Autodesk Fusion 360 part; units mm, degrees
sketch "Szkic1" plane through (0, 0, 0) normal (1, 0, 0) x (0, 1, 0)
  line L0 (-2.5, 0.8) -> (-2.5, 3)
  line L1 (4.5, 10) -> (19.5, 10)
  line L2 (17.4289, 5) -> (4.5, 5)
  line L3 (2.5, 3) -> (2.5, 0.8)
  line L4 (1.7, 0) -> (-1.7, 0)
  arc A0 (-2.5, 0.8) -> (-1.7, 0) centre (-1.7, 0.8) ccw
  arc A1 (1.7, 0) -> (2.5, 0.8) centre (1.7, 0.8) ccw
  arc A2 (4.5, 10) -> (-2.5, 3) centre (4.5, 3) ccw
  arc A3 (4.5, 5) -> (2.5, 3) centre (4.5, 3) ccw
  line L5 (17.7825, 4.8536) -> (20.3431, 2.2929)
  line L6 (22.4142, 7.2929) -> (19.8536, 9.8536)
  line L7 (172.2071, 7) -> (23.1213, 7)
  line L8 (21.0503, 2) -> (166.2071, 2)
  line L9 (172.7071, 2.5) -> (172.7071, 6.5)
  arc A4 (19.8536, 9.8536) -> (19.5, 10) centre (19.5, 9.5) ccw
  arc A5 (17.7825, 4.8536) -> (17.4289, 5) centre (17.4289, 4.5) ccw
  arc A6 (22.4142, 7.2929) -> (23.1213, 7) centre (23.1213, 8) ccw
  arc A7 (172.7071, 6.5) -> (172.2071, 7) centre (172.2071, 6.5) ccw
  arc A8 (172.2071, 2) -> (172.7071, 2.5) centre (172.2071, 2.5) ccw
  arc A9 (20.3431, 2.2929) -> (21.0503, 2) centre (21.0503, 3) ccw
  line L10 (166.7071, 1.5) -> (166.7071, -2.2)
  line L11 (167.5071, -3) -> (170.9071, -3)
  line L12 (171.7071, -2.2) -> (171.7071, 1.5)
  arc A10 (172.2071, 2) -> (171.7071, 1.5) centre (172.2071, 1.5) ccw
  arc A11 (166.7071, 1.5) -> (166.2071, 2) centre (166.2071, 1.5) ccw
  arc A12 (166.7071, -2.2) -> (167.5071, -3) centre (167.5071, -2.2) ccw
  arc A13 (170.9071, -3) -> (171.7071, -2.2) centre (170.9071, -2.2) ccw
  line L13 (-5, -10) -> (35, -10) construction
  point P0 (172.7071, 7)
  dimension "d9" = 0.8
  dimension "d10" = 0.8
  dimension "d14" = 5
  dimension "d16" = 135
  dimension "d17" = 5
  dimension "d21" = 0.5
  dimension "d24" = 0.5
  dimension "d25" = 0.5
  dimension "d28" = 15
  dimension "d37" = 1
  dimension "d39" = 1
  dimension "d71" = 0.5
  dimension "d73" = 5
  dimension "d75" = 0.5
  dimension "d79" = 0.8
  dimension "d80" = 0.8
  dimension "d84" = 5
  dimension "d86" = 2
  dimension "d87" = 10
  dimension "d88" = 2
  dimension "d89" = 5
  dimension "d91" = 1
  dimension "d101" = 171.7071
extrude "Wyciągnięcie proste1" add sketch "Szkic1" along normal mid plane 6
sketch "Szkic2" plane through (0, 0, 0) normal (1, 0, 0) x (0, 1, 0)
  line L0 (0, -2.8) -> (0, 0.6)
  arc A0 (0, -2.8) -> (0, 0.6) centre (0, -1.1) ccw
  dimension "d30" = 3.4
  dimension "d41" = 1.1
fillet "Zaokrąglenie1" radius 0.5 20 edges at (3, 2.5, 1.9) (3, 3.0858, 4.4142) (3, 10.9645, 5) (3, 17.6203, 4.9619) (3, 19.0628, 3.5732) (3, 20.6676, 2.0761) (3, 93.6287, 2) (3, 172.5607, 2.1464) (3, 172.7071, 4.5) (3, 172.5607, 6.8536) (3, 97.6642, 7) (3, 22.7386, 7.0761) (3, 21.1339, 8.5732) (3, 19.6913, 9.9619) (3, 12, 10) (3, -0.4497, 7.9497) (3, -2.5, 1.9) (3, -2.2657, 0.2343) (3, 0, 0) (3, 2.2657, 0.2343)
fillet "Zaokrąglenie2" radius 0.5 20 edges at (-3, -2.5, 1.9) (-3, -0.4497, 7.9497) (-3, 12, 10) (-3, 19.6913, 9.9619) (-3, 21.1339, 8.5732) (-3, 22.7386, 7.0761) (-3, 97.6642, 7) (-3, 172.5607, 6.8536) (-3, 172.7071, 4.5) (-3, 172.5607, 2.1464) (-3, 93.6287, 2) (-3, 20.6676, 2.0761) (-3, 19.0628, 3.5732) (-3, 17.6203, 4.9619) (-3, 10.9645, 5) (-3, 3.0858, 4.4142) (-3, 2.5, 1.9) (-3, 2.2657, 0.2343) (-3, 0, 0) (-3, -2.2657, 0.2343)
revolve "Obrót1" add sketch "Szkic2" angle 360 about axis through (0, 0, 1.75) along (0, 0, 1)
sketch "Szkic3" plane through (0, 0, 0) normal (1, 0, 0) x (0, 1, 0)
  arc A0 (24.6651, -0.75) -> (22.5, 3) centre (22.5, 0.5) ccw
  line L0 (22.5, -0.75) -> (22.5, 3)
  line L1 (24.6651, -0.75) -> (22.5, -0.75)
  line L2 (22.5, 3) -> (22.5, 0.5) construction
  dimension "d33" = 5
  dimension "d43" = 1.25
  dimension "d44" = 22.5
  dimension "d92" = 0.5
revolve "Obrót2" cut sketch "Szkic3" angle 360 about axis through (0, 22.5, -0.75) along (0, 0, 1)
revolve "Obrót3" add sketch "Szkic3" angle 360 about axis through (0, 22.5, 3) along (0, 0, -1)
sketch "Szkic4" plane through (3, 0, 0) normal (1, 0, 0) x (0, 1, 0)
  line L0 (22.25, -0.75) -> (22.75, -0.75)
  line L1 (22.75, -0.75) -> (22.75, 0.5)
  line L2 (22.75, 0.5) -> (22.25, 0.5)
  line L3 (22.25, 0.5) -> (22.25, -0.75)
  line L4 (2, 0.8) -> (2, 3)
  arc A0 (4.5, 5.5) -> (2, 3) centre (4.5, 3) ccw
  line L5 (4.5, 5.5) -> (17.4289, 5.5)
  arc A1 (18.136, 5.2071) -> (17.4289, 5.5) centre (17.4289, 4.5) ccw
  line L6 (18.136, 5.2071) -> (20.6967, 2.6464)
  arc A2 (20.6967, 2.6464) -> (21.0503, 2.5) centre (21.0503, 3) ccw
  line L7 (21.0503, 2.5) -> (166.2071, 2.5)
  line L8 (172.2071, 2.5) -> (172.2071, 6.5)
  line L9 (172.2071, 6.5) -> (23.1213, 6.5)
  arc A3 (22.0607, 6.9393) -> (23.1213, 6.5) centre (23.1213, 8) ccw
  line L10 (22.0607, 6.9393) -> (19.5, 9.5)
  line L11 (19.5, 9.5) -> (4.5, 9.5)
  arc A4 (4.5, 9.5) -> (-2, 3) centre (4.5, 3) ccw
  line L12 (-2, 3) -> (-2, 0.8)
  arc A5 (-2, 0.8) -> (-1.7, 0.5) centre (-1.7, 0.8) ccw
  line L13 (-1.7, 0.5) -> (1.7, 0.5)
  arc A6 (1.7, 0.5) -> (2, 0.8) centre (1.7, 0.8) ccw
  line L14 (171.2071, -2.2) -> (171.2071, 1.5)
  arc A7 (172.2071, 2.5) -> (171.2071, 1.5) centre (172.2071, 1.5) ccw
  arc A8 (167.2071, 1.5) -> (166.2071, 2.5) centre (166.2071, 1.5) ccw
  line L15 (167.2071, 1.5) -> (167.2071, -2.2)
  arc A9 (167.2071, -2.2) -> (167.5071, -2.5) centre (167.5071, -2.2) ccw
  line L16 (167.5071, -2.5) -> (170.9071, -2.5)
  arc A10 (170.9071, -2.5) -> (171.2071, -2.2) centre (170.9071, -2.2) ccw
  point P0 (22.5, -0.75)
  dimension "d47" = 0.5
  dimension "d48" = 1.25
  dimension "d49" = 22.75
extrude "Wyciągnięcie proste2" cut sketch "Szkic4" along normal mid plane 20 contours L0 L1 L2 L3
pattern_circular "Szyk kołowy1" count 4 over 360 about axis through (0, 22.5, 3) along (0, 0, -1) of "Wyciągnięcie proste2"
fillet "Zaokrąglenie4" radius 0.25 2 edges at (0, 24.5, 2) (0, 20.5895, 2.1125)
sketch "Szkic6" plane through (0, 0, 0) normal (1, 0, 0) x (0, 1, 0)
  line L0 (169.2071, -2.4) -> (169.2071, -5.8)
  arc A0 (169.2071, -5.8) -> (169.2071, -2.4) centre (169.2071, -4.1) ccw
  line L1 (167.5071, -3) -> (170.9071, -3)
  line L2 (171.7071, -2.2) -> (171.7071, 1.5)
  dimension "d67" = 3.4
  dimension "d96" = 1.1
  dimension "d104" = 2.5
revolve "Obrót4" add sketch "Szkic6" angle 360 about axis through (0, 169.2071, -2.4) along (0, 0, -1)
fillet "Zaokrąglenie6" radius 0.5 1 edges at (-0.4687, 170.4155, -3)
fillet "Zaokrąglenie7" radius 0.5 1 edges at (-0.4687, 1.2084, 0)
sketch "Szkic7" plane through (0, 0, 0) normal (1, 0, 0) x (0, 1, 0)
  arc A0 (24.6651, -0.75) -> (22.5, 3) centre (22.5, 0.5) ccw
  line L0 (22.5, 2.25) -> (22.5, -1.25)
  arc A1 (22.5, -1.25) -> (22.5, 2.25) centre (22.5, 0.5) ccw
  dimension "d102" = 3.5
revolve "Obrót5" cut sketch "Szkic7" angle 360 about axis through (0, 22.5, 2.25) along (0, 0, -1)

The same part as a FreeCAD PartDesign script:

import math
import FreeCAD as App
import Part
import Sketcher
from FreeCAD import Vector
Q = App.Units.Quantity


def edges_at(feature, points):
    """Names of the edges that pass closest to the given points."""
    edges = feature.Shape.Edges
    near = lambda p: min(range(len(edges)), key=lambda i: edges[i].distToShape(Part.Vertex(*p))[0])
    return sorted({f"Edge{near(p) + 1}" for p in points})

doc = App.newDocument("Part")
body = doc.addObject("PartDesign::Body", "Body")

sketch1 = doc.addObject("Sketcher::SketchObject", "Sketch")
body.addObject(sketch1)
sketch1.AttachmentSupport = (doc.YZ_Plane, [""])
sketch1.MapMode = "FlatFace"
sketch1.addGeometry(Part.LineSegment(Vector(-2.5, 3, 0), Vector(-2.5, 0.8, 0)), False)
sketch1.addGeometry(Part.ArcOfCircle(Part.Circle(Vector(-1.7, 0.8, 0), Vector(0, 0, 1), 0.8), math.radians(180), math.radians(270)), False)
sketch1.addGeometry(Part.LineSegment(Vector(-1.7, 0, 0), Vector(1.7, 0, 0)), False)
sketch1.addGeometry(Part.ArcOfCircle(Part.Circle(Vector(1.7, 0.8, 0), Vector(0, 0, 1), 0.8), math.radians(-90), math.radians(0)), False)
sketch1.addGeometry(Part.LineSegment(Vector(2.5, 0.8, 0), Vector(2.5, 3, 0)), False)
sketch1.addGeometry(Part.ArcOfCircle(Part.Circle(Vector(4.5, 3, 0), Vector(0, 0, 1), 2), math.radians(90), math.radians(180)), False)
sketch1.addGeometry(Part.LineSegment(Vector(4.5, 5, 0), Vector(17.43, 5, 0)), False)
sketch1.addGeometry(Part.ArcOfCircle(Part.Circle(Vector(17.43, 4.5, 0), Vector(0, 0, 1), 0.5), math.radians(45), math.radians(90)), False)
sketch1.addGeometry(Part.LineSegment(Vector(17.78, 4.85, 0), Vector(20.34, 2.29, 0)), False)
sketch1.addGeometry(Part.ArcOfCircle(Part.Circle(Vector(21.05, 3, 0), Vector(0, 0, 1), 1), math.radians(-135), math.radians(-90)), False)
sketch1.addGeometry(Part.LineSegment(Vector(21.05, 2, 0), Vector(166.21, 2, 0)), False)
sketch1.addGeometry(Part.ArcOfCircle(Part.Circle(Vector(166.21, 1.5, 0), Vector(0, 0, 1), 0.5), math.radians(0), math.radians(90)), False)
sketch1.addGeometry(Part.LineSegment(Vector(166.71, 1.5, 0), Vector(166.71, -2.2, 0)), False)
sketch1.addGeometry(Part.ArcOfCircle(Part.Circle(Vector(167.51, -2.2, 0), Vector(0, 0, 1), 0.8), math.radians(180), math.radians(270)), False)
sketch1.addGeometry(Part.LineSegment(Vector(167.51, -3, 0), Vector(170.91, -3, 0)), False)
sketch1.addGeometry(Part.ArcOfCircle(Part.Circle(Vector(170.91, -2.2, 0), Vector(0, 0, 1), 0.8), math.radians(-90), math.radians(0)), False)
sketch1.addGeometry(Part.LineSegment(Vector(171.71, -2.2, 0), Vector(171.71, 1.5, 0)), False)
sketch1.addGeometry(Part.ArcOfCircle(Part.Circle(Vector(172.21, 1.5, 0), Vector(0, 0, 1), 0.5), math.radians(90), math.radians(180)), False)
sketch1.addGeometry(Part.ArcOfCircle(Part.Circle(Vector(172.21, 2.5, 0), Vector(0, 0, 1), 0.5), math.radians(-90), math.radians(0)), False)
sketch1.addGeometry(Part.LineSegment(Vector(172.71, 2.5, 0), Vector(172.71, 6.5, 0)), False)
sketch1.addGeometry(Part.ArcOfCircle(Part.Circle(Vector(172.21, 6.5, 0), Vector(0, 0, 1), 0.5), math.radians(0), math.radians(90)), False)
sketch1.addGeometry(Part.LineSegment(Vector(172.21, 7, 0), Vector(23.12, 7, 0)), False)
sketch1.addGeometry(Part.ArcOfCircle(Part.Circle(Vector(23.12, 8, 0), Vector(0, 0, 1), 1), math.radians(-135), math.radians(-90)), False)
sketch1.addGeometry(Part.LineSegment(Vector(22.41, 7.29, 0), Vector(19.85, 9.85, 0)), False)
sketch1.addGeometry(Part.ArcOfCircle(Part.Circle(Vector(19.5, 9.5, 0), Vector(0, 0, 1), 0.5), math.radians(45), math.radians(90)), False)
sketch1.addGeometry(Part.LineSegment(Vector(19.5, 10, 0), Vector(4.5, 10, 0)), False)
sketch1.addGeometry(Part.ArcOfCircle(Part.Circle(Vector(4.5, 3, 0), Vector(0, 0, 1), 7), math.radians(90), math.radians(180)), False)
sketch1.addConstraint(Sketcher.Constraint("Tangent", 0, 2, 1, 1))
sketch1.addConstraint(Sketcher.Constraint("Tangent", 1, 2, 2, 1))
sketch1.addConstraint(Sketcher.Constraint("Tangent", 2, 2, 3, 1))
sketch1.addConstraint(Sketcher.Constraint("Tangent", 3, 2, 4, 1))
sketch1.addConstraint(Sketcher.Constraint("Tangent", 4, 2, 5, 2))
sketch1.addConstraint(Sketcher.Constraint("Tangent", 5, 1, 6, 1))
sketch1.addConstraint(Sketcher.Constraint("Tangent", 6, 2, 7, 2))
sketch1.addConstraint(Sketcher.Constraint("Tangent", 7, 1, 8, 1))
sketch1.addConstraint(Sketcher.Constraint("Tangent", 8, 2, 9, 1))
sketch1.addConstraint(Sketcher.Constraint("Tangent", 9, 2, 10, 1))
sketch1.addConstraint(Sketcher.Constraint("Tangent", 10, 2, 11, 2))
sketch1.addConstraint(Sketcher.Constraint("Tangent", 11, 1, 12, 1))
sketch1.addConstraint(Sketcher.Constraint("Tangent", 12, 2, 13, 1))
sketch1.addConstraint(Sketcher.Constraint("Tangent", 13, 2, 14, 1))
sketch1.addConstraint(Sketcher.Constraint("Tangent", 14, 2, 15, 1))
sketch1.addConstraint(Sketcher.Constraint("Tangent", 15, 2, 16, 1))
sketch1.addConstraint(Sketcher.Constraint("Tangent", 16, 2, 17, 2))
sketch1.addConstraint(Sketcher.Constraint("Tangent", 17, 1, 18, 1))
sketch1.addConstraint(Sketcher.Constraint("Tangent", 18, 2, 19, 1))
sketch1.addConstraint(Sketcher.Constraint("Tangent", 19, 2, 20, 1))
sketch1.addConstraint(Sketcher.Constraint("Tangent", 20, 2, 21, 1))
sketch1.addConstraint(Sketcher.Constraint("Tangent", 21, 2, 22, 2))
sketch1.addConstraint(Sketcher.Constraint("Tangent", 22, 1, 23, 1))
sketch1.addConstraint(Sketcher.Constraint("Tangent", 23, 2, 24, 1))
sketch1.addConstraint(Sketcher.Constraint("Tangent", 24, 2, 25, 1))
sketch1.addConstraint(Sketcher.Constraint("Tangent", 25, 2, 26, 1))
sketch1.addConstraint(Sketcher.Constraint("Tangent", 26, 2, 0, 1))
sketch1.addConstraint(Sketcher.Constraint("Vertical", 0))
sketch1.addConstraint(Sketcher.Constraint("Horizontal", 2))
sketch1.addConstraint(Sketcher.Constraint("Vertical", 4))
sketch1.addConstraint(Sketcher.Constraint("Horizontal", 6))
sketch1.addConstraint(Sketcher.Constraint("Horizontal", 10))
sketch1.addConstraint(Sketcher.Constraint("Vertical", 12))
sketch1.addConstraint(Sketcher.Constraint("Horizontal", 14))
sketch1.addConstraint(Sketcher.Constraint("Vertical", 16))
sketch1.addConstraint(Sketcher.Constraint("Vertical", 19))
sketch1.addConstraint(Sketcher.Constraint("Horizontal", 21))
sketch1.addConstraint(Sketcher.Constraint("Horizontal", 25))
sketch1.addConstraint(Sketcher.Constraint("Coincident", 26, 3, 5, 3))
sketch1.addConstraint(Sketcher.Constraint("Equal", 1, 3))
sketch1.addConstraint(Sketcher.Constraint("Equal", 7, 11))
sketch1.addConstraint(Sketcher.Constraint("Equal", 3, 13))
sketch1.addConstraint(Sketcher.Constraint("Equal", 13, 15))
sketch1.addConstraint(Sketcher.Constraint("Equal", 11, 17))
sketch1.addConstraint(Sketcher.Constraint("Equal", 17, 18))
sketch1.addConstraint(Sketcher.Constraint("Equal", 18, 20))
sketch1.addConstraint(Sketcher.Constraint("Equal", 9, 22))
sketch1.addConstraint(Sketcher.Constraint("Equal", 20, 24))
sketch1.addConstraint(Sketcher.Constraint("Symmetric", 1, 2, 2, 2, -1, 1))
sketch1.addConstraint(Sketcher.Constraint("Parallel", 8, 23))
sketch1.addConstraint(Sketcher.Constraint("Horizontal", 5, 3, 9, 3))
sketch1.addConstraint(Sketcher.Constraint("Horizontal", 11, 3, 17, 3))
sketch1.addConstraint(Sketcher.Constraint("Vertical", 17, 3, 18, 3))
sketch1.addConstraint(Sketcher.Constraint("Equal", 2, 14))
sketch1.addConstraint(Sketcher.Constraint("Equal", 8, 23))
sketch1.addConstraint(Sketcher.Constraint("Radius", 5, Q("2 mm")))
sketch1.addConstraint(Sketcher.Constraint("Radius", 9, Q("1 mm")))
sketch1.addConstraint(Sketcher.Constraint("Radius", 1, Q("0.8 mm")))
sketch1.addConstraint(Sketcher.Constraint("Radius", 7, Q("0.5 mm")))
sketch1.addConstraint(Sketcher.Constraint("DistanceX", 25, 2, 25, 1, Q("15 mm")))
sketch1.addConstraint(Sketcher.Constraint("DistanceY", -1, 1, 5, 1, Q("5 mm")))
sketch1.addConstraint(Sketcher.Constraint("DistanceY", -1, 1, 24, 2, Q("10 mm")))
sketch1.addConstraint(Sketcher.Constraint("Angle", 8, Q("-45.001 deg")))
sketch1.addConstraint(Sketcher.Constraint("DistanceY", 12, 2, 12, 1, Q("3.7 mm")))
sketch1.addConstraint(Sketcher.Constraint("DistanceX", -1, 1, 15, 2, Q("171.707 mm")))
sketch1.addConstraint(Sketcher.Constraint("DistanceX", 6, 1, 6, 2, Q("12.929 mm")))
pad1 = doc.addObject("PartDesign::Pad", "Pad")
body.addObject(pad1)
pad1.Profile = sketch1
pad1.Length = 6
pad1.Midplane = True
doc.recompute()

fillet = doc.addObject("PartDesign::Fillet", "Fillet")
body.addObject(fillet)
fillet.Base = (pad1, edges_at(pad1, [
    (3, 2.5, 1.9),
    (3, 3.086, 4.414),
    (3, 10.964, 5),
    (3, 17.62, 4.962),
    (3, 19.063, 3.573),
    (3, 20.668, 2.076),
    (3, 93.629, 2),
    (3, 172.561, 2.146),
    (3, 172.707, 4.5),
    (3, 172.561, 6.854),
    (3, 97.664, 7),
    (3, 22.739, 7.076),
    (3, 21.134, 8.573),
    (3, 19.691, 9.962),
    (3, 12, 10),
    (3, -0.45, 7.95),
    (3, -2.5, 1.9),
    (3, -2.266, 0.234),
    (3, 0, 0),
    (3, 2.266, 0.234),
]))
fillet.Radius = 0.5
doc.recompute()

fillet2 = doc.addObject("PartDesign::Fillet", "Fillet001")
body.addObject(fillet2)
fillet2.Base = (fillet, edges_at(fillet, [
    (-3, -2.5, 1.9),
    (-3, -0.45, 7.95),
    (-3, 12, 10),
    (-3, 19.691, 9.962),
    (-3, 21.134, 8.573),
    (-3, 22.739, 7.076),
    (-3, 97.664, 7),
    (-3, 172.561, 6.854),
    (-3, 172.707, 4.5),
    (-3, 172.561, 2.146),
    (-3, 93.629, 2),
    (-3, 20.668, 2.076),
    (-3, 19.063, 3.573),
    (-3, 17.62, 4.962),
    (-3, 10.964, 5),
    (-3, 3.086, 4.414),
    (-3, 2.5, 1.9),
    (-3, 2.266, 0.234),
    (-3, 0, 0),
    (-3, -2.266, 0.234),
]))
fillet2.Radius = 0.5

sketch2 = doc.addObject("Sketcher::SketchObject", "Sketch001")
body.addObject(sketch2)
sketch2.AttachmentSupport = (doc.YZ_Plane, [""])
sketch2.MapMode = "FlatFace"
sketch2.addGeometry(Part.LineSegment(Vector(0, 0.6, 0), Vector(0, -2.8, 0)), False)
sketch2.addGeometry(Part.ArcOfCircle(Part.Circle(Vector(0, -1.1, 0), Vector(0, 0, 1), 1.7), math.radians(-90), math.radians(90)), False)
sketch2.addConstraint(Sketcher.Constraint("Coincident", 0, 1, 1, 2))
sketch2.addConstraint(Sketcher.Constraint("Coincident", 1, 1, 0, 2))
sketch2.addConstraint(Sketcher.Constraint("Vertical", 0))
sketch2.addConstraint(Sketcher.Constraint("PointOnObject", 1, 3, -2))
sketch2.addConstraint(Sketcher.Constraint("PointOnObject", 0, 1, -2))
sketch2.addConstraint(Sketcher.Constraint("Radius", 1, Q("1.7 mm")))
sketch2.addConstraint(Sketcher.Constraint("DistanceY", 1, 3, -1, 1, Q("1.1 mm")))
revolution = doc.addObject("PartDesign::Revolution", "Revolution")
body.addObject(revolution)
revolution.Profile = sketch2
revolution.ReferenceAxis = (sketch2, ["V_Axis"])
revolution.Angle = 360

sketch3 = doc.addObject("Sketcher::SketchObject", "Sketch002")
body.addObject(sketch3)
sketch3.AttachmentSupport = (doc.YZ_Plane, [""])
sketch3.MapMode = "FlatFace"
sketch3.addGeometry(Part.LineSegment(Vector(22.5, -0.8, 0), Vector(24.7, -0.8, 0)), False)
sketch3.addGeometry(Part.ArcOfCircle(Part.Circle(Vector(22.5, 0.5, 0), Vector(0, 0, 1), 2.5), math.radians(-30), math.radians(90)), False)
sketch3.addGeometry(Part.LineSegment(Vector(22.5, 3, 0), Vector(22.5, -0.8, 0)), False)
sketch3.addGeometry(Part.LineSegment(Vector(22.5, -0.8, 0), Vector(22.5, 3, 0)), True)
sketch3.addConstraint(Sketcher.Constraint("Coincident", 0, 2, 1, 1))
sketch3.addConstraint(Sketcher.Constraint("Coincident", 1, 2, 2, 1))
sketch3.addConstraint(Sketcher.Constraint("Coincident", 2, 2, 0, 1))
sketch3.addConstraint(Sketcher.Constraint("Horizontal", 0))
sketch3.addConstraint(Sketcher.Constraint("Vertical", 2))
sketch3.addConstraint(Sketcher.Constraint("Vertical", 3))
sketch3.addConstraint(Sketcher.Constraint("Coincident", 3, 1, 2, 2))
sketch3.addConstraint(Sketcher.Constraint("Equal", 2, 3))
sketch3.addConstraint(Sketcher.Constraint("Radius", 1, Q("2.5 mm")))
sketch3.addConstraint(Sketcher.Constraint("DistanceX", -1, 1, 1, 3, Q("22.5 mm")))
sketch3.addConstraint(Sketcher.Constraint("DistanceY", -1, 1, 1, 3, Q("0.5 mm")))
sketch3.addConstraint(Sketcher.Constraint("DistanceX", -1, 1, 1, 2, Q("22.5 mm")))
sketch3.addConstraint(Sketcher.Constraint("DistanceY", 0, 2, 1, 3, Q("1.25 mm")))
groove = doc.addObject("PartDesign::Groove", "Groove")
body.addObject(groove)
groove.Profile = sketch3
groove.ReferenceAxis = (sketch3, ["Axis0"])
groove.Angle = 360

sketch4 = doc.addObject("Sketcher::SketchObject", "Sketch003")
body.addObject(sketch4)
sketch4.AttachmentSupport = (doc.YZ_Plane, [""])
sketch4.MapMode = "FlatFace"
sketch4.addGeometry(Part.LineSegment(Vector(22.5, -0.8, 0), Vector(24.7, -0.8, 0)), False)
sketch4.addGeometry(Part.ArcOfCircle(Part.Circle(Vector(22.5, 0.5, 0), Vector(0, 0, 1), 2.5), math.radians(-30), math.radians(90)), False)
sketch4.addGeometry(Part.LineSegment(Vector(22.5, 3, 0), Vector(22.5, -0.8, 0)), False)
sketch4.addGeometry(Part.LineSegment(Vector(22.5, 3, 0), Vector(22.5, -0.8, 0)), True)
sketch4.addConstraint(Sketcher.Constraint("Coincident", 0, 2, 1, 1))
sketch4.addConstraint(Sketcher.Constraint("Coincident", 1, 2, 2, 1))
sketch4.addConstraint(Sketcher.Constraint("Coincident", 2, 2, 0, 1))
sketch4.addConstraint(Sketcher.Constraint("Horizontal", 0))
sketch4.addConstraint(Sketcher.Constraint("Vertical", 2))
sketch4.addConstraint(Sketcher.Constraint("Vertical", 3))
sketch4.addConstraint(Sketcher.Constraint("Coincident", 3, 1, 1, 2))
sketch4.addConstraint(Sketcher.Constraint("Horizontal", 0, 2, 3, 2))
sketch4.addConstraint(Sketcher.Constraint("Radius", 1, Q("2.5 mm")))
sketch4.addConstraint(Sketcher.Constraint("DistanceX", -1, 1, 1, 3, Q("22.5 mm")))
sketch4.addConstraint(Sketcher.Constraint("DistanceY", -1, 1, 1, 3, Q("0.5 mm")))
sketch4.addConstraint(Sketcher.Constraint("DistanceX", -1, 1, 1, 2, Q("22.5 mm")))
sketch4.addConstraint(Sketcher.Constraint("DistanceY", 0, 2, 1, 3, Q("1.25 mm")))
revolution2 = doc.addObject("PartDesign::Revolution", "Revolution001")
body.addObject(revolution2)
revolution2.Profile = sketch4
revolution2.ReferenceAxis = (sketch4, ["Axis0"])
revolution2.Angle = 360

sketch5 = doc.addObject("Sketcher::SketchObject", "Sketch004")
body.addObject(sketch5)
sketch5.AttachmentSupport = (doc.YZ_Plane, [""])
sketch5.MapMode = "FlatFace"
sketch5.AttachmentOffset = App.Placement(Vector(0, 0, 3), App.Rotation())
sketch5.addGeometry(Part.LineSegment(Vector(22.2, 0.5, 0), Vector(22.2, -0.8, 0)), False)
sketch5.addGeometry(Part.LineSegment(Vector(22.2, -0.8, 0), Vector(22.8, -0.8, 0)), False)
sketch5.addGeometry(Part.LineSegment(Vector(22.8, -0.8, 0), Vector(22.8, 0.5, 0)), False)
sketch5.addGeometry(Part.LineSegment(Vector(22.8, 0.5, 0), Vector(22.2, 0.5, 0)), False)
sketch5.addConstraint(Sketcher.Constraint("Coincident", 0, 2, 1, 1))
sketch5.addConstraint(Sketcher.Constraint("Coincident", 1, 2, 2, 1))
sketch5.addConstraint(Sketcher.Constraint("Coincident", 2, 2, 3, 1))
sketch5.addConstraint(Sketcher.Constraint("Coincident", 3, 2, 0, 1))
sketch5.addConstraint(Sketcher.Constraint("Vertical", 0))
sketch5.addConstraint(Sketcher.Constraint("Horizontal", 1))
sketch5.addConstraint(Sketcher.Constraint("Vertical", 2))
sketch5.addConstraint(Sketcher.Constraint("Horizontal", 3))
sketch5.addConstraint(Sketcher.Constraint("DistanceX", 1, 1, 1, 2, Q("0.5 mm")))
sketch5.addConstraint(Sketcher.Constraint("DistanceY", 0, 2, 0, 1, Q("1.25 mm")))
sketch5.addConstraint(Sketcher.Constraint("DistanceY", -1, 1, 2, 2, Q("0.5 mm")))
sketch5.addConstraint(Sketcher.Constraint("DistanceX", -1, 1, 1, 2, Q("22.75 mm")))
pocket1 = doc.addObject("PartDesign::Pocket", "Pocket")
body.addObject(pocket1)
pocket1.Profile = sketch5
pocket1.Length = 20
pocket1.Midplane = True
doc.recompute()

datumline = doc.addObject("PartDesign::Line", "DatumLine")
body.addObject(datumline)
datumline.Placement = App.Placement(Vector(0, 22.5, 0), App.Rotation(Vector(0, 0, 1), Vector(0, 0, 1)))
polarpattern = doc.addObject("PartDesign::PolarPattern", "PolarPattern")
body.addObject(polarpattern)
polarpattern.Originals = [pocket1]
polarpattern.Axis = (datumline, [""])
polarpattern.Angle = 360
polarpattern.Occurrences = 4
body.Tip = polarpattern
doc.recompute()

fillet3 = doc.addObject("PartDesign::Fillet", "Fillet002")
body.addObject(fillet3)
fillet3.Base = (polarpattern, edges_at(polarpattern, [(0, 24.5, 2), (0, 20.59, 2.112)]))
fillet3.Radius = 0.25

sketch6 = doc.addObject("Sketcher::SketchObject", "Sketch005")
body.addObject(sketch6)
sketch6.AttachmentSupport = (doc.YZ_Plane, [""])
sketch6.MapMode = "FlatFace"
sketch6.addGeometry(Part.LineSegment(Vector(169.2, -2.4, 0), Vector(169.2, -5.8, 0)), False)
sketch6.addGeometry(Part.ArcOfCircle(Part.Circle(Vector(169.2, -4.1, 0), Vector(0, 0, 1), 1.7), math.radians(-90), math.radians(90)), False)
sketch6.addGeometry(Part.LineSegment(Vector(169.2, -2.4, 0), Vector(169.2, -5.8, 0)), True)
sketch6.addConstraint(Sketcher.Constraint("Coincident", 0, 1, 1, 2))
sketch6.addConstraint(Sketcher.Constraint("Coincident", 1, 1, 0, 2))
sketch6.addConstraint(Sketcher.Constraint("Vertical", 0))
sketch6.addConstraint(Sketcher.Constraint("Vertical", 2))
sketch6.addConstraint(Sketcher.Constraint("Coincident", 2, 1, 0, 1))
sketch6.addConstraint(Sketcher.Constraint("Vertical", 1, 3, 0, 1))
sketch6.addConstraint(Sketcher.Constraint("Equal", 0, 2))
sketch6.addConstraint(Sketcher.Constraint("Radius", 1, Q("1.7 mm")))
sketch6.addConstraint(Sketcher.Constraint("DistanceY", 1, 3, -1, 1, Q("4.1 mm")))
sketch6.addConstraint(Sketcher.Constraint("DistanceX", -1, 1, 1, 3, Q("169.207 mm")))
revolution3 = doc.addObject("PartDesign::Revolution", "Revolution002")
body.addObject(revolution3)
revolution3.Profile = sketch6
revolution3.ReferenceAxis = (sketch6, ["Axis0"])
revolution3.Angle = 360
doc.recompute()

fillet4 = doc.addObject("PartDesign::Fillet", "Fillet003")
body.addObject(fillet4)
fillet4.Base = (revolution3, edges_at(revolution3, [(-0.469, 170.416, -3)]))
fillet4.Radius = 0.5
doc.recompute()

fillet5 = doc.addObject("PartDesign::Fillet", "Fillet004")
body.addObject(fillet5)
fillet5.Base = (fillet4, edges_at(fillet4, [(-0.469, 1.208, 0)]))
fillet5.Radius = 0.5

sketch7 = doc.addObject("Sketcher::SketchObject", "Sketch006")
body.addObject(sketch7)
sketch7.AttachmentSupport = (doc.YZ_Plane, [""])
sketch7.MapMode = "FlatFace"
sketch7.addGeometry(Part.ArcOfCircle(Part.Circle(Vector(22.5, 0.5, 0), Vector(0, 0, 1), 1.8), math.radians(-90), math.radians(90)), False)
sketch7.addGeometry(Part.LineSegment(Vector(22.5, 2.2, 0), Vector(22.5, -1.2, 0)), False)
sketch7.addGeometry(Part.LineSegment(Vector(22.5, 2.2, 0), Vector(22.5, -1.2, 0)), True)
sketch7.addConstraint(Sketcher.Constraint("Coincident", 0, 1, 1, 2))
sketch7.addConstraint(Sketcher.Constraint("Coincident", 1, 1, 0, 2))
sketch7.addConstraint(Sketcher.Constraint("Vertical", 1))
sketch7.addConstraint(Sketcher.Constraint("Vertical", 2))
sketch7.addConstraint(Sketcher.Constraint("Coincident", 2, 1, 1, 1))
sketch7.addConstraint(Sketcher.Constraint("Equal", 1, 2))
sketch7.addConstraint(Sketcher.Constraint("Radius", 0, Q("1.75 mm")))
sketch7.addConstraint(Sketcher.Constraint("DistanceX", -1, 1, 0, 3, Q("22.5 mm")))
sketch7.addConstraint(Sketcher.Constraint("DistanceY", -1, 1, 0, 3, Q("0.5 mm")))
sketch7.addConstraint(Sketcher.Constraint("DistanceX", -1, 1, 0, 1, Q("22.5 mm")))
groove2 = doc.addObject("PartDesign::Groove", "Groove001")
body.addObject(groove2)
groove2.Profile = sketch7
groove2.ReferenceAxis = (sketch7, ["Axis0"])
groove2.Angle = 360

doc.recompute()
